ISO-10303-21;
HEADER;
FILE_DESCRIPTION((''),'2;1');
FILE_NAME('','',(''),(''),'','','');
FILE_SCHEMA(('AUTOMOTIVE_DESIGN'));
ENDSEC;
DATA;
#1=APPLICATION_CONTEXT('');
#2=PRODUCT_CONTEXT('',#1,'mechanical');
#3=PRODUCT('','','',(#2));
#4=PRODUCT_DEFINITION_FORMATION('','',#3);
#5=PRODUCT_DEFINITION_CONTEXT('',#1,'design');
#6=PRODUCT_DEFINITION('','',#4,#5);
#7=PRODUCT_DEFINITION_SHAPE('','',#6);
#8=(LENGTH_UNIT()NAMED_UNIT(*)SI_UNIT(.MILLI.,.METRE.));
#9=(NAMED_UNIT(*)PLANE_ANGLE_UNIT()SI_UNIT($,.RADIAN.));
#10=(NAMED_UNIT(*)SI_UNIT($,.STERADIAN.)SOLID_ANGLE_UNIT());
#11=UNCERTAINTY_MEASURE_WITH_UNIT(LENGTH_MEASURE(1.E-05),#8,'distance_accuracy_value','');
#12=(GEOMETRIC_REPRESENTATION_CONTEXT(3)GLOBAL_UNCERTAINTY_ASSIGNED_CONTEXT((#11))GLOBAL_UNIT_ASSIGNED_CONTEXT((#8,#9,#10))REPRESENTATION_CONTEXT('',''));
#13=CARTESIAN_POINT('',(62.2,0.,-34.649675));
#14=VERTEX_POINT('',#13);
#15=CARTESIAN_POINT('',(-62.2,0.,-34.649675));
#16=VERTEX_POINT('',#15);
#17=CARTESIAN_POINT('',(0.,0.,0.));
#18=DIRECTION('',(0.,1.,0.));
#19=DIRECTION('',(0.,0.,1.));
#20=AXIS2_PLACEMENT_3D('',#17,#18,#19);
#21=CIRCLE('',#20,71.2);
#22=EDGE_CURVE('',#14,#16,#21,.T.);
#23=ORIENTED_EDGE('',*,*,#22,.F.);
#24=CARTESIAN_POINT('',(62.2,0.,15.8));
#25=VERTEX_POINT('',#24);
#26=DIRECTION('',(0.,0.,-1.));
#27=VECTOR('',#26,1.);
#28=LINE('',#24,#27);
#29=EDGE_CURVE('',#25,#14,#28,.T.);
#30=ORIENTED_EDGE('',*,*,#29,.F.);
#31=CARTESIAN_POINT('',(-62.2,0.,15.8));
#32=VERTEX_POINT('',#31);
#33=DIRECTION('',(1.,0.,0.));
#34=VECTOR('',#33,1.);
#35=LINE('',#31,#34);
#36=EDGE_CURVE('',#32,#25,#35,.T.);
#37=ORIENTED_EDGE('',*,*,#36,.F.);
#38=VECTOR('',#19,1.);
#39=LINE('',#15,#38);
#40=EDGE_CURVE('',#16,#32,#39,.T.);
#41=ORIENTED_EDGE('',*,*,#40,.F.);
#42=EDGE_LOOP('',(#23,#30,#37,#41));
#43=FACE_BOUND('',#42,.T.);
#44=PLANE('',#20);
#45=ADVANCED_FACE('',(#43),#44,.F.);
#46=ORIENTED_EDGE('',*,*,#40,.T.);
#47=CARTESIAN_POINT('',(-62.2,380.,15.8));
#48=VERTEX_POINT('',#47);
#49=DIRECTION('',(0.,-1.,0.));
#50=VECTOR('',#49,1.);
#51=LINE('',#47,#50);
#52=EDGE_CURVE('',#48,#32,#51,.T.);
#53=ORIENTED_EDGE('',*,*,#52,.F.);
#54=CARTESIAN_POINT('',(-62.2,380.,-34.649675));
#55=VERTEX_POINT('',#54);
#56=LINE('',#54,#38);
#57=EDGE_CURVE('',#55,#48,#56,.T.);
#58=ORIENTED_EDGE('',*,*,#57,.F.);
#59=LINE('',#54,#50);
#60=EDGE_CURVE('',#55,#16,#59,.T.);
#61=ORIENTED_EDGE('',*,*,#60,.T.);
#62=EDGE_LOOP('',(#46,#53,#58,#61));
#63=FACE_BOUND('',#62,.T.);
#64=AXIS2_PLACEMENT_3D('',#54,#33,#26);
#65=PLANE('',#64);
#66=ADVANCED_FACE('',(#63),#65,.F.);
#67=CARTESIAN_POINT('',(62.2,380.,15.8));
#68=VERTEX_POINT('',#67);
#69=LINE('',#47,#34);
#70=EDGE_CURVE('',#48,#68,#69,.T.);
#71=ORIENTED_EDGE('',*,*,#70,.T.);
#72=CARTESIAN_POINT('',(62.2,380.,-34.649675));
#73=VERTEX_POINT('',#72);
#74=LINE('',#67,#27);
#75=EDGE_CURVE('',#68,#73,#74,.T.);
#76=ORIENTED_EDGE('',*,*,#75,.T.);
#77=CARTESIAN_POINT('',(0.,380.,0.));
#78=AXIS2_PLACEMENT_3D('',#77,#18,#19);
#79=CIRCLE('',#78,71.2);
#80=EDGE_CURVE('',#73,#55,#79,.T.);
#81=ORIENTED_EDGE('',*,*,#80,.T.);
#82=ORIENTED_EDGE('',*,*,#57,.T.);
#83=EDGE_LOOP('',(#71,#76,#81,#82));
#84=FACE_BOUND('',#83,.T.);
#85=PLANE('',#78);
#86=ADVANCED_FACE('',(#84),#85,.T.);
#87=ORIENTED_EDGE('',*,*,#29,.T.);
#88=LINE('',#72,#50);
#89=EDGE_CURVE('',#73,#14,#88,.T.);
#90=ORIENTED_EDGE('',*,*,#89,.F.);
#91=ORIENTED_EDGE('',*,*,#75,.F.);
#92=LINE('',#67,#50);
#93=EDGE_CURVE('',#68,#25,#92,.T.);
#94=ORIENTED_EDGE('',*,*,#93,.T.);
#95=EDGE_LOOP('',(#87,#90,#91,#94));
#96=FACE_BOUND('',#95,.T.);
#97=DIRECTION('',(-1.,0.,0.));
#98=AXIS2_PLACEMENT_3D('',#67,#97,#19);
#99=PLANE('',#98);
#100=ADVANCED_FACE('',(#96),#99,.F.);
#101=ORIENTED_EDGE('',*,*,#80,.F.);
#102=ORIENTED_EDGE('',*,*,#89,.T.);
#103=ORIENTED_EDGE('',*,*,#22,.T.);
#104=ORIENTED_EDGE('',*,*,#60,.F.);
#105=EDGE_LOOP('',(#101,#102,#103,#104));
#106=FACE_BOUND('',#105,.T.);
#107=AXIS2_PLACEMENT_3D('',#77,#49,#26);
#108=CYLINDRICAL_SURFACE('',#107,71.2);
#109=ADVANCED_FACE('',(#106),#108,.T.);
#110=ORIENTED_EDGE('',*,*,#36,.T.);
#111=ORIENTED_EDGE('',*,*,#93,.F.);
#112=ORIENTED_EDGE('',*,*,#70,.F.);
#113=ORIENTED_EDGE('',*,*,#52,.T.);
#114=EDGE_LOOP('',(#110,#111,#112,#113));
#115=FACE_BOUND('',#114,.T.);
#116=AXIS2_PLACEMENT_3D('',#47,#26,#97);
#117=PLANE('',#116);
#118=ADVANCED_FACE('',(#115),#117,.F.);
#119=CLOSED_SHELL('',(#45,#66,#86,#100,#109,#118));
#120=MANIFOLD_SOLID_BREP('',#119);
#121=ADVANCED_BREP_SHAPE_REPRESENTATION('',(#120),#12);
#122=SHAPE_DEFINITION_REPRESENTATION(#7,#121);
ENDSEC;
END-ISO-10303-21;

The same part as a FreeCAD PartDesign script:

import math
import FreeCAD as App
import Part
import Sketcher
from FreeCAD import Vector
Q = App.Units.Quantity

doc = App.newDocument("Part")
params = doc.addObject("Spreadsheet::Sheet", "Params")
for row, (alias, value) in enumerate([
    ("sketch1_radius", "71.2 mm"),
    ("sketch1_width", "124.4 mm"),
    ("pad1_length", "380 mm"),
], start=1):
    params.set(f"A{row}", alias)
    params.set(f"B{row}", "=" + value)
    params.setAlias(f"B{row}", alias)

body = doc.addObject("PartDesign::Body", "Body")

# Sketch on XZ plane
sketch1 = body.newObject("Sketcher::SketchObject", "Sketch")
sketch1.AttachmentSupport = (doc.getObject("XZ_Plane"), [""])
sketch1.MapMode = "FlatFace"
sketch1.addGeometry(Part.LineSegment(Vector(-62, 16, 0), Vector(62, 16, 0)), False)
sketch1.addGeometry(Part.LineSegment(Vector(62, 16, 0), Vector(62, -35, 0)), False)
sketch1.addGeometry(Part.ArcOfCircle(Part.Circle(Vector(0, 0, 0), Vector(0, 0, 1), 71), math.radians(-151), math.radians(-29)), False)
sketch1.addGeometry(Part.LineSegment(Vector(-62, -35, 0), Vector(-62, 16, 0)), False)
sketch1.addConstraint(Sketcher.Constraint("Coincident", 0, 2, 1, 1))
sketch1.addConstraint(Sketcher.Constraint("Coincident", 1, 2, 2, 2))
sketch1.addConstraint(Sketcher.Constraint("Coincident", 2, 1, 3, 1))
sketch1.addConstraint(Sketcher.Constraint("Coincident", 3, 2, 0, 1))
sketch1.addConstraint(Sketcher.Constraint("Horizontal", 0))
sketch1.addConstraint(Sketcher.Constraint("Vertical", 1))
sketch1.addConstraint(Sketcher.Constraint("Vertical", 3))
sketch1.addConstraint(Sketcher.Constraint("Coincident", 2, 3, -1, 1))
sketch1.addConstraint(Sketcher.Constraint("Horizontal", 1, 2, 2, 1))
sketch1.addConstraint(Sketcher.Constraint("Radius", 2, Q("71.2 mm")))
sketch1.addConstraint(Sketcher.Constraint("DistanceX", 0, 1, 0, 2, Q("124.4 mm")))
sketch1.addConstraint(Sketcher.Constraint("DistanceY", -1, 1, 0, 2, Q("15.8 mm")))
sketch1.setExpression("Constraints[9]", "Params.sketch1_radius")
sketch1.setExpression("Constraints[10]", "Params.sketch1_width")
pad1 = body.newObject("PartDesign::Pad", "Pad")
pad1.Profile = sketch1
pad1.setExpression("Length", "Params.pad1_length")
pad1.Reversed = True

doc.recompute()
